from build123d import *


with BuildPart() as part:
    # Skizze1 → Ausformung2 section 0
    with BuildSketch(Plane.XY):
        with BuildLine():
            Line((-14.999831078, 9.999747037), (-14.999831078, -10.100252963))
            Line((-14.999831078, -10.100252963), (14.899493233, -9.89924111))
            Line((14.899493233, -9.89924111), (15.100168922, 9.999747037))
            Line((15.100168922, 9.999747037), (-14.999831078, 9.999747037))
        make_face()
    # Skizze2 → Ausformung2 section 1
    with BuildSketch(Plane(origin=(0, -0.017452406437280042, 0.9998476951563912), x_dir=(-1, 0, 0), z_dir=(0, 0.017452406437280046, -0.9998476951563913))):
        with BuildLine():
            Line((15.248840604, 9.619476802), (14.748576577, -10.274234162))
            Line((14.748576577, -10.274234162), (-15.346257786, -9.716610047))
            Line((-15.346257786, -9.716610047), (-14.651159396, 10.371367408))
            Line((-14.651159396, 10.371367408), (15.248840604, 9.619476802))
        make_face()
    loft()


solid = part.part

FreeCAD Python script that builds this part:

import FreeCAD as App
import Part
import Sketcher


def add_polygon(sketch, points):
    """Adds a closed chain of lines whose ends are joined by coincident constraints."""
    first, n = sketch.GeometryCount, len(points)
    for a, b in zip(points, points[1:] + points[:1]):
        sketch.addGeometry(Part.LineSegment(App.Vector(*a, 0), App.Vector(*b, 0)), False)
    for i in range(n):
        sketch.addConstraint(Sketcher.Constraint("Coincident", first + i, 2, first + (i + 1) % n, 1))

doc = App.newDocument("Part")
body = doc.addObject("PartDesign::Body", "Body")

# Sketch on XY plane
sketch1 = body.newObject("Sketcher::SketchObject", "Sketch")
sketch1.AttachmentSupport = (doc.getObject("XY_Plane"), [""])
sketch1.MapMode = "FlatFace"
add_polygon(sketch1, [(-15, 10), (-15, -10), (15, -10), (15, 10)])  # lines 0-3
sketch1.addConstraint([
    Sketcher.Constraint("Vertical", 0),
    Sketcher.Constraint("Horizontal", 3),
    Sketcher.Constraint("DistanceX", 3, 2, 3, 1, 30.1),
    Sketcher.Constraint("DistanceY", 0, 2, 0, 1, 20.1),
    Sketcher.Constraint("Distance", 1, 29.9),
    Sketcher.Constraint("Distance", 2, 19.9),
    Sketcher.Constraint("DistanceX", 0, 2, -1, 1, 14.999831),
    Sketcher.Constraint("DistanceY", 1, 2, -1, 1, 9.899241),
])

# Sketch on an angled plane
sketch2 = body.newObject("Sketcher::SketchObject", "Sketch001")
sketch2.Placement = App.Placement(App.Vector(0, -0.017452, 0.999848), App.Rotation(App.Vector(-1, 0, 0), App.Vector(0, 0.999847695, 0.017452406), App.Vector(0, 0.017452406, -0.999847695), "ZXY"))
add_polygon(sketch2, [(15, -10), (15, 10), (-15, 10), (-15, -10)])  # lines 0-3
sketch2.addConstraint([
    Sketcher.Constraint("Perpendicular", 0, 1),
    Sketcher.Constraint("Distance", 0, 19.9),
    Sketcher.Constraint("Distance", 2, 20.1),
    Sketcher.Constraint("Distance", 3, 30.1),
    Sketcher.Constraint("DistanceX", 1, 2, 0, 2, 29.9),
    Sketcher.Constraint("DistanceX", 2, 2, 1, 2, 0.695098),
    Sketcher.Constraint("DistanceX", -1, 1, 0, 2, 15.248841),
    Sketcher.Constraint("DistanceY", 2, 2, -1, 1, 9.71661),
])

additiveloft = body.newObject("PartDesign::AdditiveLoft", "AdditiveLoft")
additiveloft.Profile = sketch1
additiveloft.Sections = [sketch2]

doc.recompute()
